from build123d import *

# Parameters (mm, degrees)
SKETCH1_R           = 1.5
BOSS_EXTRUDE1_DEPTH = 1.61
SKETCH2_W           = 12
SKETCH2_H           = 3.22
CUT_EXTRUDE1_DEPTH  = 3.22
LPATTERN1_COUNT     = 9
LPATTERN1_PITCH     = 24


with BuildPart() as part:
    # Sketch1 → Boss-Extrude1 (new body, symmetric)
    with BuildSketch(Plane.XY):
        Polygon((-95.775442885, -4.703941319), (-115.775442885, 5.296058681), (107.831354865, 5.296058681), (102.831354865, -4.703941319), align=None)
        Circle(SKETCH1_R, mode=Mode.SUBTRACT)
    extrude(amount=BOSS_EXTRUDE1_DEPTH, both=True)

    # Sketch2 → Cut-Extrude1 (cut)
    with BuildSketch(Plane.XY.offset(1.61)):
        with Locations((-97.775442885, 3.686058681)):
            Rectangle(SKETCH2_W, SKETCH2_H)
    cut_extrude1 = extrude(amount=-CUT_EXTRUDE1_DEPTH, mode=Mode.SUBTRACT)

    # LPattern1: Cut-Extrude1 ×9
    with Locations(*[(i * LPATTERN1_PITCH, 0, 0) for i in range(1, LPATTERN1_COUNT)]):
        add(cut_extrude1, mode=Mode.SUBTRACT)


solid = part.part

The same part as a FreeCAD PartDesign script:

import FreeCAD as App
import Part
import Sketcher


def add_polygon(sketch, points):
    """Adds a closed chain of lines whose ends are joined by coincident constraints."""
    first, n = sketch.GeometryCount, len(points)
    for a, b in zip(points, points[1:] + points[:1]):
        sketch.addGeometry(Part.LineSegment(App.Vector(*a, 0), App.Vector(*b, 0)), False)
    for i in range(n):
        sketch.addConstraint(Sketcher.Constraint("Coincident", first + i, 2, first + (i + 1) % n, 1))

doc = App.newDocument("Part")
body = doc.addObject("PartDesign::Body", "Body")

# Sketch on XY plane
sketch1 = body.newObject("Sketcher::SketchObject", "Sketch")
sketch1.AttachmentSupport = (doc.getObject("XY_Plane"), [""])
sketch1.MapMode = "FlatFace"
add_polygon(sketch1, [(-115.775443, 5.296059), (-95.775443, -4.703941), (102.831355, -4.703941), (107.831355, 5.296059)])  # lines 0-3
sketch1.addGeometry(Part.Circle(App.Vector(0, 0, 0), App.Vector(0, 0, 1), 1.5), False)  # 4
sketch1.addConstraint(Sketcher.Constraint("Horizontal", 1))
sketch1.addConstraint(Sketcher.Constraint("Horizontal", 3))
sketch1.addConstraint(Sketcher.Constraint("Coincident", 4, 3, -1, 1))
sketch1.addConstraint(Sketcher.Constraint("Perpendicular", 0, 2))
sketch1.addConstraint(Sketcher.Constraint("Diameter", 4, 3.0))
sketch1.addConstraint(Sketcher.Constraint("DistanceX", 1, 2, 2, 2, 5.0))
sketch1.addConstraint(Sketcher.Constraint("DistanceY", 1, 2, 2, 2, 10.0))
sketch1.addConstraint(Sketcher.Constraint("DistanceX", 1, 1, 1, 2, 198.606798))
sketch1.addConstraint(Sketcher.Constraint("DistanceY", 0, 2, -1, 1, 4.703941))
sketch1.addConstraint(Sketcher.Constraint("DistanceX", 0, 2, -1, 1, 95.775443))
pad1 = body.newObject("PartDesign::Pad", "Pad")
pad1.Profile = sketch1
pad1.Length = 3.22
pad1.Midplane = True

# Sketch on XY plane
sketch2 = body.newObject("Sketcher::SketchObject", "Sketch001")
sketch2.AttachmentSupport = (doc.getObject("XY_Plane"), [""])
sketch2.MapMode = "FlatFace"
sketch2.AttachmentOffset = App.Placement(App.Vector(0, 0, 1.61), App.Rotation())
add_polygon(sketch2, [(-103.775443, 5.296059), (-103.775443, 2.076059), (-91.775443, 2.076059), (-91.775443, 5.296059)])  # lines 0-3
sketch2.addConstraint(Sketcher.Constraint("Vertical", 0))
sketch2.addConstraint(Sketcher.Constraint("Horizontal", 1))
sketch2.addConstraint(Sketcher.Constraint("Vertical", 2))
sketch2.addConstraint(Sketcher.Constraint("Horizontal", 3))
sketch2.addConstraint(Sketcher.Constraint("DistanceX", 1, 1, 1, 2, 12.0))
sketch2.addConstraint(Sketcher.Constraint("DistanceY", 0, 2, 0, 1, 3.22))
sketch2.addConstraint(Sketcher.Constraint("DistanceY", -1, 1, 0, 2, 2.076059))
sketch2.addConstraint(Sketcher.Constraint("DistanceX", 0, 2, -1, 1, 103.775443))
pocket1 = body.newObject("PartDesign::Pocket", "Pocket")
pocket1.Profile = sketch2
pocket1.Length = 3.22
doc.recompute()

linearpattern = body.newObject("PartDesign::LinearPattern", "LinearPattern")
linearpattern.Originals = [pocket1]
linearpattern.Direction = (doc.getObject("X_Axis"), [""])
linearpattern.Mode = "offset"
linearpattern.Offset = 24
linearpattern.Occurrences = 9
body.Tip = linearpattern

doc.recompute()
